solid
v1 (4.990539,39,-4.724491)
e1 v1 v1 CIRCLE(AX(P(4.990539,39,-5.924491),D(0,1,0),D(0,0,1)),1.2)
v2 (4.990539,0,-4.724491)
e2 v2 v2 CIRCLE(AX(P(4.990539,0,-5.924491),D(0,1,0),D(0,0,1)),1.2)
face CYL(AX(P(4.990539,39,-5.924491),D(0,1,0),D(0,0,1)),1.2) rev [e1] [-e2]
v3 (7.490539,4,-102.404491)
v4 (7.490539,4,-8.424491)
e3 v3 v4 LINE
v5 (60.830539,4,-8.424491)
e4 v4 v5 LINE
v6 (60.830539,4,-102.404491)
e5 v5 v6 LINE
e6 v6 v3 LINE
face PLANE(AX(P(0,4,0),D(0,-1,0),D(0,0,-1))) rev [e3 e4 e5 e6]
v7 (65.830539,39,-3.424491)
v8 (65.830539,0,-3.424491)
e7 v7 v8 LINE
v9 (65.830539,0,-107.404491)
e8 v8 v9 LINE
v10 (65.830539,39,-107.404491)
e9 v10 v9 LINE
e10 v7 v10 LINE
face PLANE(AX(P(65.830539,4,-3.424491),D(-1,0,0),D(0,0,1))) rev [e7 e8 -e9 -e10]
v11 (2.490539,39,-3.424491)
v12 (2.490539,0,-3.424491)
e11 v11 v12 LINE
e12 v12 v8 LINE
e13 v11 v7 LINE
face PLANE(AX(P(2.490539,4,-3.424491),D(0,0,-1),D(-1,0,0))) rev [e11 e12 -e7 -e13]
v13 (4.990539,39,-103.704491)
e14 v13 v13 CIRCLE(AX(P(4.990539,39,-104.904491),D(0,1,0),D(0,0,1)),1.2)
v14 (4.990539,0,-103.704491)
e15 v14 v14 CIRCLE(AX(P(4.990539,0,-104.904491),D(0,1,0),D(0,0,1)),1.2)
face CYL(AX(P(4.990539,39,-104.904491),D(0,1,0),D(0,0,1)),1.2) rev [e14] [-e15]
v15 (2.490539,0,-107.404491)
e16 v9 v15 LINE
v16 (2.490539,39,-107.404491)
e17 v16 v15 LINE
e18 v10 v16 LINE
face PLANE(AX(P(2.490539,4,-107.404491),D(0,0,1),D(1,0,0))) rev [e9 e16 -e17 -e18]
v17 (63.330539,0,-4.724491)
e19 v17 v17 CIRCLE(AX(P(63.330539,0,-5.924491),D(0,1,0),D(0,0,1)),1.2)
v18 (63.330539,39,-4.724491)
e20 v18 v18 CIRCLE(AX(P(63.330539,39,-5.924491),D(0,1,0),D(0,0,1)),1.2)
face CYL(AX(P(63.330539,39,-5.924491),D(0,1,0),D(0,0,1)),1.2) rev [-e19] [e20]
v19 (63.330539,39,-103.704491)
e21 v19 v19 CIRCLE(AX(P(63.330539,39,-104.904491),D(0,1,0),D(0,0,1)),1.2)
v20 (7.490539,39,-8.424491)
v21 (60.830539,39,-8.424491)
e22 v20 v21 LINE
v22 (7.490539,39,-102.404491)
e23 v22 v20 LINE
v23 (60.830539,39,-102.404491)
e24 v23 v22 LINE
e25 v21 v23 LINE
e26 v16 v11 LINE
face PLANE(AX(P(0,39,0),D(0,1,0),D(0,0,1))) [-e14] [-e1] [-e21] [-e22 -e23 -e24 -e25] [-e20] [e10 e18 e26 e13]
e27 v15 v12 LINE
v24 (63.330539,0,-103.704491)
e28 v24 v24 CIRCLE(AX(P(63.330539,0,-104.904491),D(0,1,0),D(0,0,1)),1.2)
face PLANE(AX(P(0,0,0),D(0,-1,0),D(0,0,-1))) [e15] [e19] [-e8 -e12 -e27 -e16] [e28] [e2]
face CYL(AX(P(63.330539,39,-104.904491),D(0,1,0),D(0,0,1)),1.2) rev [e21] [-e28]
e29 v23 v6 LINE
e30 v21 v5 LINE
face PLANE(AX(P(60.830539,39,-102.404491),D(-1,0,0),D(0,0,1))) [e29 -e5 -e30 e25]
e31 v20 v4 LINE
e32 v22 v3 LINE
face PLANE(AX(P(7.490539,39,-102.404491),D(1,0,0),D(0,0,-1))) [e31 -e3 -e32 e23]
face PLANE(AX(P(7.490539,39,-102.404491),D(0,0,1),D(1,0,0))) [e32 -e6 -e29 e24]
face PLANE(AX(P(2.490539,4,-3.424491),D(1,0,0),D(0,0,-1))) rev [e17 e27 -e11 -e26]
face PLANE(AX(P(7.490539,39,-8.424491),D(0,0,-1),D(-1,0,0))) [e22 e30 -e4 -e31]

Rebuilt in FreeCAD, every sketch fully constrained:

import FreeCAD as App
import Part
import Sketcher

V = App.Vector
Q = App.Units.Quantity

doc = App.newDocument("Part")
params = doc.addObject("Spreadsheet::Sheet", "Params")
for row, (alias, value) in enumerate([
    ("sketch1_width", "63.34 mm"),
    ("sketch1_height", "103.98 mm"),
    ("pad1_length", "4 mm"),
    ("sketch2_width", "63.34 mm"),
    ("sketch2_height", "103.98 mm"),
    ("pad2_length", "35 mm"),
    ("sketch3_diameter", "2.4 mm"),
    ("hole_diameter", "2.4 mm"),
], start=1):
    params.set(f"A{row}", alias)
    params.set(f"B{row}", "=" + value)
    params.setAlias(f"B{row}", alias)

body = doc.addObject("PartDesign::Body", "Body")

sketch1 = doc.addObject("Sketcher::SketchObject", "Sketch")
body.addObject(sketch1)
sketch1.AttachmentSupport = (doc.XZ_Plane, [""])
sketch1.MapMode = "FlatFace"
sketch1.addGeometry(Part.LineSegment(V(2.490539, -107.404491, 0), V(2.490539, -3.424491, 0)), False)
sketch1.addGeometry(Part.LineSegment(V(2.490539, -3.424491, 0), V(65.830539, -3.424491, 0)), False)
sketch1.addGeometry(Part.LineSegment(V(65.830539, -3.424491, 0), V(65.830539, -107.404491, 0)), False)
sketch1.addGeometry(Part.LineSegment(V(65.830539, -107.404491, 0), V(2.490539, -107.404491, 0)), False)
sketch1.addConstraint(Sketcher.Constraint("Coincident", 0, 2, 1, 1))
sketch1.addConstraint(Sketcher.Constraint("Coincident", 1, 2, 2, 1))
sketch1.addConstraint(Sketcher.Constraint("Coincident", 2, 2, 3, 1))
sketch1.addConstraint(Sketcher.Constraint("Coincident", 3, 2, 0, 1))
sketch1.addConstraint(Sketcher.Constraint("Vertical", 0))
sketch1.addConstraint(Sketcher.Constraint("Horizontal", 1))
sketch1.addConstraint(Sketcher.Constraint("Vertical", 2))
sketch1.addConstraint(Sketcher.Constraint("Horizontal", 3))
sketch1.addConstraint(Sketcher.Constraint("DistanceX", 1, 1, 1, 2, Q("63.34 mm")))
sketch1.addConstraint(Sketcher.Constraint("DistanceY", 0, 1, 0, 2, Q("103.98 mm")))
sketch1.addConstraint(Sketcher.Constraint("DistanceX", -1, 1, 0, 2, Q("2.490539 mm")))
sketch1.addConstraint(Sketcher.Constraint("DistanceY", 0, 2, -1, 1, Q("3.424491 mm")))
sketch1.setExpression("Constraints[8]", "Params.sketch1_width")
sketch1.setExpression("Constraints[9]", "Params.sketch1_height")
pad1 = doc.addObject("PartDesign::Pad", "Pad")
body.addObject(pad1)
pad1.Profile = sketch1
pad1.setExpression("Length", "Params.pad1_length")
pad1.Reversed = True

sketch2 = doc.addObject("Sketcher::SketchObject", "Sketch001")
body.addObject(sketch2)
sketch2.AttachmentSupport = (doc.XZ_Plane, [""])
sketch2.MapMode = "FlatFace"
sketch2.AttachmentOffset = App.Placement(V(0, 0, -4), App.Rotation())
sketch2.addGeometry(Part.LineSegment(V(2.490539, -107.404491, 0), V(2.490539, -3.424491, 0)), False)
sketch2.addGeometry(Part.LineSegment(V(2.490539, -3.424491, 0), V(65.830539, -3.424491, 0)), False)
sketch2.addGeometry(Part.LineSegment(V(65.830539, -3.424491, 0), V(65.830539, -107.404491, 0)), False)
sketch2.addGeometry(Part.LineSegment(V(65.830539, -107.404491, 0), V(2.490539, -107.404491, 0)), False)
sketch2.addGeometry(Part.LineSegment(V(60.830539, -8.424491, 0), V(7.490539, -8.424491, 0)), False)
sketch2.addGeometry(Part.LineSegment(V(7.490539, -8.424491, 0), V(7.490539, -102.404491, 0)), False)
sketch2.addGeometry(Part.LineSegment(V(7.490539, -102.404491, 0), V(60.830539, -102.404491, 0)), False)
sketch2.addGeometry(Part.LineSegment(V(60.830539, -102.404491, 0), V(60.830539, -8.424491, 0)), False)
sketch2.addConstraint(Sketcher.Constraint("Coincident", 0, 2, 1, 1))
sketch2.addConstraint(Sketcher.Constraint("Coincident", 1, 2, 2, 1))
sketch2.addConstraint(Sketcher.Constraint("Coincident", 2, 2, 3, 1))
sketch2.addConstraint(Sketcher.Constraint("Coincident", 3, 2, 0, 1))
sketch2.addConstraint(Sketcher.Constraint("Coincident", 4, 2, 5, 1))
sketch2.addConstraint(Sketcher.Constraint("Coincident", 5, 2, 6, 1))
sketch2.addConstraint(Sketcher.Constraint("Coincident", 6, 2, 7, 1))
sketch2.addConstraint(Sketcher.Constraint("Coincident", 7, 2, 4, 1))
sketch2.addConstraint(Sketcher.Constraint("Vertical", 0))
sketch2.addConstraint(Sketcher.Constraint("Horizontal", 1))
sketch2.addConstraint(Sketcher.Constraint("Vertical", 2))
sketch2.addConstraint(Sketcher.Constraint("Horizontal", 3))
sketch2.addConstraint(Sketcher.Constraint("Horizontal", 4))
sketch2.addConstraint(Sketcher.Constraint("Vertical", 5))
sketch2.addConstraint(Sketcher.Constraint("Horizontal", 6))
sketch2.addConstraint(Sketcher.Constraint("Vertical", 7))
sketch2.addConstraint(Sketcher.Constraint("DistanceX", 0, 2, 4, 2, Q("5 mm")))
sketch2.addConstraint(Sketcher.Constraint("DistanceY", 4, 2, 0, 2, Q("5 mm")))
sketch2.addConstraint(Sketcher.Constraint("DistanceY", 3, 2, 5, 2, Q("5 mm")))
sketch2.addConstraint(Sketcher.Constraint("DistanceX", 6, 2, 2, 2, Q("5 mm")))
sketch2.addConstraint(Sketcher.Constraint("DistanceX", 1, 1, 1, 2, Q("63.34 mm")))
sketch2.addConstraint(Sketcher.Constraint("DistanceY", 0, 1, 0, 2, Q("103.98 mm")))
sketch2.addConstraint(Sketcher.Constraint("DistanceX", -1, 1, 0, 2, Q("2.490539 mm")))
sketch2.addConstraint(Sketcher.Constraint("DistanceY", 0, 2, -1, 1, Q("3.424491 mm")))
sketch2.setExpression("Constraints[20]", "Params.sketch2_width")
sketch2.setExpression("Constraints[21]", "Params.sketch2_height")
pad2 = doc.addObject("PartDesign::Pad", "Pad001")
body.addObject(pad2)
pad2.Profile = sketch2
pad2.setExpression("Length", "Params.pad2_length")
pad2.Reversed = True

sketch3 = doc.addObject("Sketcher::SketchObject", "Sketch002")
body.addObject(sketch3)
sketch3.AttachmentSupport = (doc.XZ_Plane, [""])
sketch3.MapMode = "FlatFace"
sketch3.AttachmentOffset = App.Placement(V(0, 0, -39), App.Rotation())
sketch3.addGeometry(Part.Circle(V(4.990539, -104.904491, 0), V(0, 0, 1), 1.2), False)
sketch3.addGeometry(Part.Circle(V(63.330539, -104.904491, 0), V(0, 0, 1), 1.2), False)
sketch3.addGeometry(Part.Circle(V(63.330539, -5.924491, 0), V(0, 0, 1), 1.2), False)
sketch3.addGeometry(Part.Circle(V(4.990539, -5.924491, 0), V(0, 0, 1), 1.2), False)
sketch3.addConstraint(Sketcher.Constraint("Equal", 0, 1))
sketch3.addConstraint(Sketcher.Constraint("Equal", 1, 2))
sketch3.addConstraint(Sketcher.Constraint("Equal", 2, 3))
sketch3.addConstraint(Sketcher.Constraint("Horizontal", 0, 3, 1, 3))
sketch3.addConstraint(Sketcher.Constraint("Horizontal", 2, 3, 3, 3))
sketch3.addConstraint(Sketcher.Constraint("Vertical", 1, 3, 2, 3))
sketch3.addConstraint(Sketcher.Constraint("Vertical", 0, 3, 3, 3))
sketch3.addConstraint(Sketcher.Constraint("Diameter", 0, Q("2.4 mm")))
sketch3.addConstraint(Sketcher.Constraint("DistanceX", 0, 3, 1, 3, Q("58.34 mm")))
sketch3.addConstraint(Sketcher.Constraint("DistanceY", 1, 3, 2, 3, Q("98.98 mm")))
sketch3.addConstraint(Sketcher.Constraint("DistanceX", -1, 1, 0, 3, Q("4.990539 mm")))
sketch3.addConstraint(Sketcher.Constraint("DistanceY", 0, 3, -1, 1, Q("104.904491 mm")))
sketch3.setExpression("Constraints[7]", "Params.sketch3_diameter")
doc.recompute()
hole = doc.addObject("PartDesign::Hole", "Hole")
body.addObject(hole)
hole.Profile = sketch3
hole.ThreadType = "None"
hole.setExpression("Diameter", "Params.hole_diameter")
hole.DepthType = "ThroughAll"
hole.Reversed = True

doc.recompute()
